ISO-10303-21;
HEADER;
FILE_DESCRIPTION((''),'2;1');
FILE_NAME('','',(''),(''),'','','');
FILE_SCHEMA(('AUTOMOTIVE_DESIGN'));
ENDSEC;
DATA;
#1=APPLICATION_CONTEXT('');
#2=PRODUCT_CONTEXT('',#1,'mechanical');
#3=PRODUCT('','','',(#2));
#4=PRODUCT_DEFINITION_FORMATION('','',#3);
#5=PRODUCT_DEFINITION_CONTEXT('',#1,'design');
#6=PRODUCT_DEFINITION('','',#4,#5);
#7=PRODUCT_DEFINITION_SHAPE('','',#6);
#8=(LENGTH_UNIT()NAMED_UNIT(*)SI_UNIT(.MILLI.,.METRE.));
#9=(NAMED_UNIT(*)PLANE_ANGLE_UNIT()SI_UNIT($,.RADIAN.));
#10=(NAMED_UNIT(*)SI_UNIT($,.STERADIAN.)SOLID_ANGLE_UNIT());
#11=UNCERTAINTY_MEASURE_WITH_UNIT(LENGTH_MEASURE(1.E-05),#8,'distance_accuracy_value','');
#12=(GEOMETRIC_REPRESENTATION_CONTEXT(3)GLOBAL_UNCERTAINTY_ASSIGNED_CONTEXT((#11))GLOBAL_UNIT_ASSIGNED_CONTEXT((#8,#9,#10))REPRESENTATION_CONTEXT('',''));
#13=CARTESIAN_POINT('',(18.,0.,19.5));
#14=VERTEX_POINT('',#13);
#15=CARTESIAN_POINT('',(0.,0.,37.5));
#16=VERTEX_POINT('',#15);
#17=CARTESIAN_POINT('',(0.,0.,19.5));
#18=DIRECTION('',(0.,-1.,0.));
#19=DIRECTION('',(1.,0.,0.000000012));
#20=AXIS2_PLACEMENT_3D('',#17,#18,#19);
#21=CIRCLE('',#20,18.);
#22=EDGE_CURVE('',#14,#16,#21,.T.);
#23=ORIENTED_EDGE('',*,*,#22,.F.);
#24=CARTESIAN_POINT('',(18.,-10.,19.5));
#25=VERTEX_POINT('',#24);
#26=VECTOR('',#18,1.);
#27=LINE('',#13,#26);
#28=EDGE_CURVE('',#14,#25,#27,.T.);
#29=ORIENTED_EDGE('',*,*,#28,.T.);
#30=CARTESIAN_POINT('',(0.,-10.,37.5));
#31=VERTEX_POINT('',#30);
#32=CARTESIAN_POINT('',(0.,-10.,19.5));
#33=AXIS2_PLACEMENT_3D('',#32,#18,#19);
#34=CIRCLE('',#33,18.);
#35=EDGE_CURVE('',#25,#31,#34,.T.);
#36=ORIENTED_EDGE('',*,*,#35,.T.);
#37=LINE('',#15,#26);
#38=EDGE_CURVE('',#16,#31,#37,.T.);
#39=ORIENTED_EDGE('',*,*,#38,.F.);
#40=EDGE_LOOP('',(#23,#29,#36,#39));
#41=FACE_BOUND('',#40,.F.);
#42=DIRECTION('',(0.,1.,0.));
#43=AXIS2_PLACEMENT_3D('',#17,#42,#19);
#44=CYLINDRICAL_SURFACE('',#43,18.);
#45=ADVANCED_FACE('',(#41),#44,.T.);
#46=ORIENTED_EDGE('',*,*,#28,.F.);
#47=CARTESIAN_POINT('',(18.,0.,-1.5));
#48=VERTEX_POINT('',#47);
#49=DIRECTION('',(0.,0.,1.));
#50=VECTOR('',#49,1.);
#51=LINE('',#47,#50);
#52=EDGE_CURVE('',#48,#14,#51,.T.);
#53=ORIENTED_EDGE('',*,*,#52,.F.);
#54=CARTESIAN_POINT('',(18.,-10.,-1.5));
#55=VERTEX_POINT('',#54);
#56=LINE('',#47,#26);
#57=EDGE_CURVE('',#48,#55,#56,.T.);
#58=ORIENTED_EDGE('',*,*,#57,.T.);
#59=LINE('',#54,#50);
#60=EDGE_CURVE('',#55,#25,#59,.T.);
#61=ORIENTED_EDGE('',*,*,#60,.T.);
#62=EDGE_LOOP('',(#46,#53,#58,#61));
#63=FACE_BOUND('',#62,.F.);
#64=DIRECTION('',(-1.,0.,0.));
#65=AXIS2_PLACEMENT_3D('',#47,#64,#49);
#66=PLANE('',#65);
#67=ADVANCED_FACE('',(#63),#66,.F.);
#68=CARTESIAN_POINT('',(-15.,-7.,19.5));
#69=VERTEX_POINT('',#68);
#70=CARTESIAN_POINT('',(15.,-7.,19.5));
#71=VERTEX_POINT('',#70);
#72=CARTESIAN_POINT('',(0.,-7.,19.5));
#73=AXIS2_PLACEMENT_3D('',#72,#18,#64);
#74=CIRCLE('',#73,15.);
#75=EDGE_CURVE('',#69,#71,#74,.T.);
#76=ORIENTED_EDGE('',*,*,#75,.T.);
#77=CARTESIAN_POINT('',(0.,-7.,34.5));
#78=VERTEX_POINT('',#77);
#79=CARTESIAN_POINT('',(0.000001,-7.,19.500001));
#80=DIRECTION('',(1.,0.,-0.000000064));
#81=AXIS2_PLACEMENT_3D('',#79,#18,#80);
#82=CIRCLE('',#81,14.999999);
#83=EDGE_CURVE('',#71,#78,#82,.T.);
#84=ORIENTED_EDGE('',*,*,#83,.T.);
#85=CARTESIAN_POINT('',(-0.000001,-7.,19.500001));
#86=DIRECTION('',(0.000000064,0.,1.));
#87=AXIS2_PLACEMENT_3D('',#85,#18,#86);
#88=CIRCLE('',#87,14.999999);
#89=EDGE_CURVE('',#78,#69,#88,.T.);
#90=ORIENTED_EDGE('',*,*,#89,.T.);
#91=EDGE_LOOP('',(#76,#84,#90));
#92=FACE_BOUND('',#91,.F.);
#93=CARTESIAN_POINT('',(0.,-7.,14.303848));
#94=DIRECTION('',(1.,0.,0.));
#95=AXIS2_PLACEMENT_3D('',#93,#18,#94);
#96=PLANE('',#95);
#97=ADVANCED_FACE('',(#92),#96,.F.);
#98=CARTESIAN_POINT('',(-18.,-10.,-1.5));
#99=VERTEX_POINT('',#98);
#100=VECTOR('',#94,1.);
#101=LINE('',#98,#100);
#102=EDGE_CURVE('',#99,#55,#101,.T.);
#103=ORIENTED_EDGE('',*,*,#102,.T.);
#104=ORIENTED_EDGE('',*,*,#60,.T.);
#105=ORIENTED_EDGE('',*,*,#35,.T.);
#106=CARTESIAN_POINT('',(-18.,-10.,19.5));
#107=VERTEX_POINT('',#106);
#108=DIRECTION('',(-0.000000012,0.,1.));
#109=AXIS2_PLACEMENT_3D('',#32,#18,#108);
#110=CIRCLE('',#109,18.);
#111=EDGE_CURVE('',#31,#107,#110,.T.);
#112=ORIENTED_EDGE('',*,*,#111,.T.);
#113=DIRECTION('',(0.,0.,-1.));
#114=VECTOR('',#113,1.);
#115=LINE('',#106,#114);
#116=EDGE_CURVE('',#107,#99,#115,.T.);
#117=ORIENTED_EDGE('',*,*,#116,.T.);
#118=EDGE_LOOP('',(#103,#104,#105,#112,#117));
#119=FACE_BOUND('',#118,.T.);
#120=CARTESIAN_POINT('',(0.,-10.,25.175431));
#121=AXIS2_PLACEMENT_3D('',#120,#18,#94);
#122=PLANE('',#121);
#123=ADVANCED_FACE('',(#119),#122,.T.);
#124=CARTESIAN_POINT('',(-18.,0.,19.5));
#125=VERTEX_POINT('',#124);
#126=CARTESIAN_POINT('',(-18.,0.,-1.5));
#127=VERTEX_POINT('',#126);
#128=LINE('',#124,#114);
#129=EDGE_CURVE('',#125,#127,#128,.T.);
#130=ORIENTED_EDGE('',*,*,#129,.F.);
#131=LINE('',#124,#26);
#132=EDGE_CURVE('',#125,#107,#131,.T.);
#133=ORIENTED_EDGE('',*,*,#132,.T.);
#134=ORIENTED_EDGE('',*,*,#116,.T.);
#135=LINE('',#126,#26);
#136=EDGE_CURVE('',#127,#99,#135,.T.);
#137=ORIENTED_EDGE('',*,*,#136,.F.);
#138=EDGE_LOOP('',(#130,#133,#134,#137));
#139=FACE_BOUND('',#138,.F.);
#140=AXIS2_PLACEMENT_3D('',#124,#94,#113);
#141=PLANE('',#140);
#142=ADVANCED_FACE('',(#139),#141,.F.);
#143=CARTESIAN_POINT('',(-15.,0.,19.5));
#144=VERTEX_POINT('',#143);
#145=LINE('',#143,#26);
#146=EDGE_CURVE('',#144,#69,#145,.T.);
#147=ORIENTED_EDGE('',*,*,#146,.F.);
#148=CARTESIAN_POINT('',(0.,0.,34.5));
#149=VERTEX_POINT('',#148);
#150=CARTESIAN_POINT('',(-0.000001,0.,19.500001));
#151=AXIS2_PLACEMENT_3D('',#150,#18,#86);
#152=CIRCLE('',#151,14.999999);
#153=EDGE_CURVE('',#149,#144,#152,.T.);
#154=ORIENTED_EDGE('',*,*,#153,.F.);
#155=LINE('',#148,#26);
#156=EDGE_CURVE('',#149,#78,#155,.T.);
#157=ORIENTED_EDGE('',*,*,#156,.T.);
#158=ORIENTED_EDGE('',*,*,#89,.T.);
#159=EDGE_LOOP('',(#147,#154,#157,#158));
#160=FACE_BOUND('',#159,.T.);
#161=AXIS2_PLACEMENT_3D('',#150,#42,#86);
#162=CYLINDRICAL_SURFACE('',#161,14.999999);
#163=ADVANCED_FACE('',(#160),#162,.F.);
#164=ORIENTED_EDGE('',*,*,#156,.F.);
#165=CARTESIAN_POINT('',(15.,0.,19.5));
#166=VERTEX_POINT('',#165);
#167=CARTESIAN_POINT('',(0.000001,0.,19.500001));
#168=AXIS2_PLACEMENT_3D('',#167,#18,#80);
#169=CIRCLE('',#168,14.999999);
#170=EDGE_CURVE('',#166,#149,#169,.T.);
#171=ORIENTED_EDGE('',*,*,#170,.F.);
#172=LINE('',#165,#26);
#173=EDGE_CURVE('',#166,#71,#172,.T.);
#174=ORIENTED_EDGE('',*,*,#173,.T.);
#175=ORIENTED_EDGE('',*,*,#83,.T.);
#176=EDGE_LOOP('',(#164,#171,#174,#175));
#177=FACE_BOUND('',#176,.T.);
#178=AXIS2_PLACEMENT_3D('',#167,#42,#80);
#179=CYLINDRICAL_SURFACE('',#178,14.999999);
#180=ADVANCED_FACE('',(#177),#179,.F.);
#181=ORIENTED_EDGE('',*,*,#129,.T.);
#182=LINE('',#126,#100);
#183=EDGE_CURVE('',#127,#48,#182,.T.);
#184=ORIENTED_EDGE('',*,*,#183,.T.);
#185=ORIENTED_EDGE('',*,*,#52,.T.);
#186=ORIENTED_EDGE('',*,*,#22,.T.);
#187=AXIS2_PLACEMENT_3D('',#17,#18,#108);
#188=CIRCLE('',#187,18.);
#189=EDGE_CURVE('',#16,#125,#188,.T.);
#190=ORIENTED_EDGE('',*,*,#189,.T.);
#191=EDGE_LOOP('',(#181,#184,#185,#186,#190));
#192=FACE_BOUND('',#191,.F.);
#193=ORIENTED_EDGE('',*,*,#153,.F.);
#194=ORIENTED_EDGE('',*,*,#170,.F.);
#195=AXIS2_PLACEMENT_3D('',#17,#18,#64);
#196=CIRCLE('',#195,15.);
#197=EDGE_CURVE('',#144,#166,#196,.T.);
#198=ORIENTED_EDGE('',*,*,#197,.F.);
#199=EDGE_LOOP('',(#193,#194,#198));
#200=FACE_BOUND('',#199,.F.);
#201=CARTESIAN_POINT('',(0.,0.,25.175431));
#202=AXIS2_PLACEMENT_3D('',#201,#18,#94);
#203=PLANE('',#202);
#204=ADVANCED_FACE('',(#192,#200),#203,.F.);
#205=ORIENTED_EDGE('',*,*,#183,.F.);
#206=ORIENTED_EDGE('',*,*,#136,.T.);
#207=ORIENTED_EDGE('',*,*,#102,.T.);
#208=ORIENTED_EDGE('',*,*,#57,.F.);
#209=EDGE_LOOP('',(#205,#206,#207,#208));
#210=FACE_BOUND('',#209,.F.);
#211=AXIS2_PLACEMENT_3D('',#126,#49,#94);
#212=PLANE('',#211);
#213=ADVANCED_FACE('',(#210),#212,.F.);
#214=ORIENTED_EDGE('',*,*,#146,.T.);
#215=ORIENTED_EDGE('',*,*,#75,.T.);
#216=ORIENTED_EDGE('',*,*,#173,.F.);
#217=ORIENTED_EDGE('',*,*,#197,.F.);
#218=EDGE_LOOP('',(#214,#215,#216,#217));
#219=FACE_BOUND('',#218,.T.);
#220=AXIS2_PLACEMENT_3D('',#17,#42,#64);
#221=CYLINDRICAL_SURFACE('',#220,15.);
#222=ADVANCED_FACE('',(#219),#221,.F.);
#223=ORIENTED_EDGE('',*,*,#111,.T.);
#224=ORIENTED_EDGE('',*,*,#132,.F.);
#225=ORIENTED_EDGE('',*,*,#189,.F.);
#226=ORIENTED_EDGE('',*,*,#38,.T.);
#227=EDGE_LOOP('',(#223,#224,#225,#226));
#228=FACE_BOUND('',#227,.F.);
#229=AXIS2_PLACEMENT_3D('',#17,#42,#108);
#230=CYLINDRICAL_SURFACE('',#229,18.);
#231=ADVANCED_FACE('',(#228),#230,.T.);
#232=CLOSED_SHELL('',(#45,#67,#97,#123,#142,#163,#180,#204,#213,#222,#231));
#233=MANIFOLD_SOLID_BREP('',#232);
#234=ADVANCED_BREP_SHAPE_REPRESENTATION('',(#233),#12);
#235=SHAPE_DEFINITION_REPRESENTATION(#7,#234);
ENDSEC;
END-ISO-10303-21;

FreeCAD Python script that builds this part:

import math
import FreeCAD as App
import Part
import Sketcher

V = App.Vector
Q = App.Units.Quantity

doc = App.newDocument("Part")
body = doc.addObject("PartDesign::Body", "Body")

sketch1 = body.newObject("Sketcher::SketchObject", "Sketch")
sketch1.AttachmentSupport = (doc.getObject("XZ_Plane"), [""])
sketch1.MapMode = "FlatFace"
sketch1.addGeometry([
    Part.LineSegment(V(-18, -1.5, 0), V(18, -1.5, 0)),
    Part.LineSegment(V(18, -1.5, 0), V(18, 19.5, 0)),
    Part.ArcOfCircle(Part.Circle(V(0, 19.5, 0), V(0, 0, 1), 18), math.radians(0.000001), math.radians(89.999999)),
    Part.ArcOfCircle(Part.Circle(V(0, 19.5, 0), V(0, 0, 1), 18), math.radians(90.000001), math.radians(179.999999)),
    Part.LineSegment(V(-18, 19.5, 0), V(-18, -1.5, 0)),
], False)
sketch1.addConstraint([
    Sketcher.Constraint("Coincident", 0, 2, 1, 1),
    Sketcher.Constraint("Tangent", 1, 2, 2, 1),
    Sketcher.Constraint("Tangent", 2, 2, 3, 1),
    Sketcher.Constraint("Tangent", 3, 2, 4, 1),
    Sketcher.Constraint("Coincident", 4, 2, 0, 1),
    Sketcher.Constraint("Horizontal", 0),
    Sketcher.Constraint("Vertical", 1),
    Sketcher.Constraint("Vertical", 4),
    Sketcher.Constraint("Equal", 2, 3),
    Sketcher.Constraint("PointOnObject", 2, 3, -2),
    Sketcher.Constraint("PointOnObject", 2, 2, -2),
    Sketcher.Constraint("Radius", 2, Q("18 mm")),
    Sketcher.Constraint("DistanceY", 1, 1, 1, 2, Q("21 mm")),
    Sketcher.Constraint("DistanceY", -1, 1, 2, 3, Q("19.5 mm")),
])
pad1 = body.newObject("PartDesign::Pad", "Pad")
pad1.Profile = sketch1
pad1.Length = 10

sketch2 = body.newObject("Sketcher::SketchObject", "Sketch001")
sketch2.AttachmentSupport = (doc.getObject("XZ_Plane"), [""])
sketch2.MapMode = "FlatFace"
sketch2.addGeometry([
    Part.ArcOfCircle(Part.Circle(V(0, 19.5, 0), V(0, 0, 1), 15), math.radians(180), math.radians(360)),
    Part.ArcOfCircle(Part.Circle(V(0.000001, 19.500001, 0), V(0, 0, 1), 14.999999), math.radians(-0.000004), math.radians(90.000004)),
    Part.ArcOfCircle(Part.Circle(V(-0.000001, 19.500001, 0), V(0, 0, 1), 14.999999), math.radians(89.999996), math.radians(180.000004)),
], False)
sketch2.addConstraint([
    Sketcher.Constraint("Tangent", 0, 2, 1, 1),
    Sketcher.Constraint("Tangent", 1, 2, 2, 1),
    Sketcher.Constraint("Tangent", 2, 2, 0, 1),
    Sketcher.Constraint("Symmetric", 0, 2, 2, 2, -2),
    Sketcher.Constraint("PointOnObject", 1, 2, -2),
    Sketcher.Constraint("Horizontal", 2, 3, 0, 2),
    Sketcher.Constraint("Radius", 0, Q("15 mm")),
    Sketcher.Constraint("DistanceY", -1, 1, 0, 3, Q("19.5 mm")),
])
pocket1 = body.newObject("PartDesign::Pocket", "Pocket")
pocket1.Profile = sketch2
pocket1.Length = 7
pocket1.Reversed = True

doc.recompute()
